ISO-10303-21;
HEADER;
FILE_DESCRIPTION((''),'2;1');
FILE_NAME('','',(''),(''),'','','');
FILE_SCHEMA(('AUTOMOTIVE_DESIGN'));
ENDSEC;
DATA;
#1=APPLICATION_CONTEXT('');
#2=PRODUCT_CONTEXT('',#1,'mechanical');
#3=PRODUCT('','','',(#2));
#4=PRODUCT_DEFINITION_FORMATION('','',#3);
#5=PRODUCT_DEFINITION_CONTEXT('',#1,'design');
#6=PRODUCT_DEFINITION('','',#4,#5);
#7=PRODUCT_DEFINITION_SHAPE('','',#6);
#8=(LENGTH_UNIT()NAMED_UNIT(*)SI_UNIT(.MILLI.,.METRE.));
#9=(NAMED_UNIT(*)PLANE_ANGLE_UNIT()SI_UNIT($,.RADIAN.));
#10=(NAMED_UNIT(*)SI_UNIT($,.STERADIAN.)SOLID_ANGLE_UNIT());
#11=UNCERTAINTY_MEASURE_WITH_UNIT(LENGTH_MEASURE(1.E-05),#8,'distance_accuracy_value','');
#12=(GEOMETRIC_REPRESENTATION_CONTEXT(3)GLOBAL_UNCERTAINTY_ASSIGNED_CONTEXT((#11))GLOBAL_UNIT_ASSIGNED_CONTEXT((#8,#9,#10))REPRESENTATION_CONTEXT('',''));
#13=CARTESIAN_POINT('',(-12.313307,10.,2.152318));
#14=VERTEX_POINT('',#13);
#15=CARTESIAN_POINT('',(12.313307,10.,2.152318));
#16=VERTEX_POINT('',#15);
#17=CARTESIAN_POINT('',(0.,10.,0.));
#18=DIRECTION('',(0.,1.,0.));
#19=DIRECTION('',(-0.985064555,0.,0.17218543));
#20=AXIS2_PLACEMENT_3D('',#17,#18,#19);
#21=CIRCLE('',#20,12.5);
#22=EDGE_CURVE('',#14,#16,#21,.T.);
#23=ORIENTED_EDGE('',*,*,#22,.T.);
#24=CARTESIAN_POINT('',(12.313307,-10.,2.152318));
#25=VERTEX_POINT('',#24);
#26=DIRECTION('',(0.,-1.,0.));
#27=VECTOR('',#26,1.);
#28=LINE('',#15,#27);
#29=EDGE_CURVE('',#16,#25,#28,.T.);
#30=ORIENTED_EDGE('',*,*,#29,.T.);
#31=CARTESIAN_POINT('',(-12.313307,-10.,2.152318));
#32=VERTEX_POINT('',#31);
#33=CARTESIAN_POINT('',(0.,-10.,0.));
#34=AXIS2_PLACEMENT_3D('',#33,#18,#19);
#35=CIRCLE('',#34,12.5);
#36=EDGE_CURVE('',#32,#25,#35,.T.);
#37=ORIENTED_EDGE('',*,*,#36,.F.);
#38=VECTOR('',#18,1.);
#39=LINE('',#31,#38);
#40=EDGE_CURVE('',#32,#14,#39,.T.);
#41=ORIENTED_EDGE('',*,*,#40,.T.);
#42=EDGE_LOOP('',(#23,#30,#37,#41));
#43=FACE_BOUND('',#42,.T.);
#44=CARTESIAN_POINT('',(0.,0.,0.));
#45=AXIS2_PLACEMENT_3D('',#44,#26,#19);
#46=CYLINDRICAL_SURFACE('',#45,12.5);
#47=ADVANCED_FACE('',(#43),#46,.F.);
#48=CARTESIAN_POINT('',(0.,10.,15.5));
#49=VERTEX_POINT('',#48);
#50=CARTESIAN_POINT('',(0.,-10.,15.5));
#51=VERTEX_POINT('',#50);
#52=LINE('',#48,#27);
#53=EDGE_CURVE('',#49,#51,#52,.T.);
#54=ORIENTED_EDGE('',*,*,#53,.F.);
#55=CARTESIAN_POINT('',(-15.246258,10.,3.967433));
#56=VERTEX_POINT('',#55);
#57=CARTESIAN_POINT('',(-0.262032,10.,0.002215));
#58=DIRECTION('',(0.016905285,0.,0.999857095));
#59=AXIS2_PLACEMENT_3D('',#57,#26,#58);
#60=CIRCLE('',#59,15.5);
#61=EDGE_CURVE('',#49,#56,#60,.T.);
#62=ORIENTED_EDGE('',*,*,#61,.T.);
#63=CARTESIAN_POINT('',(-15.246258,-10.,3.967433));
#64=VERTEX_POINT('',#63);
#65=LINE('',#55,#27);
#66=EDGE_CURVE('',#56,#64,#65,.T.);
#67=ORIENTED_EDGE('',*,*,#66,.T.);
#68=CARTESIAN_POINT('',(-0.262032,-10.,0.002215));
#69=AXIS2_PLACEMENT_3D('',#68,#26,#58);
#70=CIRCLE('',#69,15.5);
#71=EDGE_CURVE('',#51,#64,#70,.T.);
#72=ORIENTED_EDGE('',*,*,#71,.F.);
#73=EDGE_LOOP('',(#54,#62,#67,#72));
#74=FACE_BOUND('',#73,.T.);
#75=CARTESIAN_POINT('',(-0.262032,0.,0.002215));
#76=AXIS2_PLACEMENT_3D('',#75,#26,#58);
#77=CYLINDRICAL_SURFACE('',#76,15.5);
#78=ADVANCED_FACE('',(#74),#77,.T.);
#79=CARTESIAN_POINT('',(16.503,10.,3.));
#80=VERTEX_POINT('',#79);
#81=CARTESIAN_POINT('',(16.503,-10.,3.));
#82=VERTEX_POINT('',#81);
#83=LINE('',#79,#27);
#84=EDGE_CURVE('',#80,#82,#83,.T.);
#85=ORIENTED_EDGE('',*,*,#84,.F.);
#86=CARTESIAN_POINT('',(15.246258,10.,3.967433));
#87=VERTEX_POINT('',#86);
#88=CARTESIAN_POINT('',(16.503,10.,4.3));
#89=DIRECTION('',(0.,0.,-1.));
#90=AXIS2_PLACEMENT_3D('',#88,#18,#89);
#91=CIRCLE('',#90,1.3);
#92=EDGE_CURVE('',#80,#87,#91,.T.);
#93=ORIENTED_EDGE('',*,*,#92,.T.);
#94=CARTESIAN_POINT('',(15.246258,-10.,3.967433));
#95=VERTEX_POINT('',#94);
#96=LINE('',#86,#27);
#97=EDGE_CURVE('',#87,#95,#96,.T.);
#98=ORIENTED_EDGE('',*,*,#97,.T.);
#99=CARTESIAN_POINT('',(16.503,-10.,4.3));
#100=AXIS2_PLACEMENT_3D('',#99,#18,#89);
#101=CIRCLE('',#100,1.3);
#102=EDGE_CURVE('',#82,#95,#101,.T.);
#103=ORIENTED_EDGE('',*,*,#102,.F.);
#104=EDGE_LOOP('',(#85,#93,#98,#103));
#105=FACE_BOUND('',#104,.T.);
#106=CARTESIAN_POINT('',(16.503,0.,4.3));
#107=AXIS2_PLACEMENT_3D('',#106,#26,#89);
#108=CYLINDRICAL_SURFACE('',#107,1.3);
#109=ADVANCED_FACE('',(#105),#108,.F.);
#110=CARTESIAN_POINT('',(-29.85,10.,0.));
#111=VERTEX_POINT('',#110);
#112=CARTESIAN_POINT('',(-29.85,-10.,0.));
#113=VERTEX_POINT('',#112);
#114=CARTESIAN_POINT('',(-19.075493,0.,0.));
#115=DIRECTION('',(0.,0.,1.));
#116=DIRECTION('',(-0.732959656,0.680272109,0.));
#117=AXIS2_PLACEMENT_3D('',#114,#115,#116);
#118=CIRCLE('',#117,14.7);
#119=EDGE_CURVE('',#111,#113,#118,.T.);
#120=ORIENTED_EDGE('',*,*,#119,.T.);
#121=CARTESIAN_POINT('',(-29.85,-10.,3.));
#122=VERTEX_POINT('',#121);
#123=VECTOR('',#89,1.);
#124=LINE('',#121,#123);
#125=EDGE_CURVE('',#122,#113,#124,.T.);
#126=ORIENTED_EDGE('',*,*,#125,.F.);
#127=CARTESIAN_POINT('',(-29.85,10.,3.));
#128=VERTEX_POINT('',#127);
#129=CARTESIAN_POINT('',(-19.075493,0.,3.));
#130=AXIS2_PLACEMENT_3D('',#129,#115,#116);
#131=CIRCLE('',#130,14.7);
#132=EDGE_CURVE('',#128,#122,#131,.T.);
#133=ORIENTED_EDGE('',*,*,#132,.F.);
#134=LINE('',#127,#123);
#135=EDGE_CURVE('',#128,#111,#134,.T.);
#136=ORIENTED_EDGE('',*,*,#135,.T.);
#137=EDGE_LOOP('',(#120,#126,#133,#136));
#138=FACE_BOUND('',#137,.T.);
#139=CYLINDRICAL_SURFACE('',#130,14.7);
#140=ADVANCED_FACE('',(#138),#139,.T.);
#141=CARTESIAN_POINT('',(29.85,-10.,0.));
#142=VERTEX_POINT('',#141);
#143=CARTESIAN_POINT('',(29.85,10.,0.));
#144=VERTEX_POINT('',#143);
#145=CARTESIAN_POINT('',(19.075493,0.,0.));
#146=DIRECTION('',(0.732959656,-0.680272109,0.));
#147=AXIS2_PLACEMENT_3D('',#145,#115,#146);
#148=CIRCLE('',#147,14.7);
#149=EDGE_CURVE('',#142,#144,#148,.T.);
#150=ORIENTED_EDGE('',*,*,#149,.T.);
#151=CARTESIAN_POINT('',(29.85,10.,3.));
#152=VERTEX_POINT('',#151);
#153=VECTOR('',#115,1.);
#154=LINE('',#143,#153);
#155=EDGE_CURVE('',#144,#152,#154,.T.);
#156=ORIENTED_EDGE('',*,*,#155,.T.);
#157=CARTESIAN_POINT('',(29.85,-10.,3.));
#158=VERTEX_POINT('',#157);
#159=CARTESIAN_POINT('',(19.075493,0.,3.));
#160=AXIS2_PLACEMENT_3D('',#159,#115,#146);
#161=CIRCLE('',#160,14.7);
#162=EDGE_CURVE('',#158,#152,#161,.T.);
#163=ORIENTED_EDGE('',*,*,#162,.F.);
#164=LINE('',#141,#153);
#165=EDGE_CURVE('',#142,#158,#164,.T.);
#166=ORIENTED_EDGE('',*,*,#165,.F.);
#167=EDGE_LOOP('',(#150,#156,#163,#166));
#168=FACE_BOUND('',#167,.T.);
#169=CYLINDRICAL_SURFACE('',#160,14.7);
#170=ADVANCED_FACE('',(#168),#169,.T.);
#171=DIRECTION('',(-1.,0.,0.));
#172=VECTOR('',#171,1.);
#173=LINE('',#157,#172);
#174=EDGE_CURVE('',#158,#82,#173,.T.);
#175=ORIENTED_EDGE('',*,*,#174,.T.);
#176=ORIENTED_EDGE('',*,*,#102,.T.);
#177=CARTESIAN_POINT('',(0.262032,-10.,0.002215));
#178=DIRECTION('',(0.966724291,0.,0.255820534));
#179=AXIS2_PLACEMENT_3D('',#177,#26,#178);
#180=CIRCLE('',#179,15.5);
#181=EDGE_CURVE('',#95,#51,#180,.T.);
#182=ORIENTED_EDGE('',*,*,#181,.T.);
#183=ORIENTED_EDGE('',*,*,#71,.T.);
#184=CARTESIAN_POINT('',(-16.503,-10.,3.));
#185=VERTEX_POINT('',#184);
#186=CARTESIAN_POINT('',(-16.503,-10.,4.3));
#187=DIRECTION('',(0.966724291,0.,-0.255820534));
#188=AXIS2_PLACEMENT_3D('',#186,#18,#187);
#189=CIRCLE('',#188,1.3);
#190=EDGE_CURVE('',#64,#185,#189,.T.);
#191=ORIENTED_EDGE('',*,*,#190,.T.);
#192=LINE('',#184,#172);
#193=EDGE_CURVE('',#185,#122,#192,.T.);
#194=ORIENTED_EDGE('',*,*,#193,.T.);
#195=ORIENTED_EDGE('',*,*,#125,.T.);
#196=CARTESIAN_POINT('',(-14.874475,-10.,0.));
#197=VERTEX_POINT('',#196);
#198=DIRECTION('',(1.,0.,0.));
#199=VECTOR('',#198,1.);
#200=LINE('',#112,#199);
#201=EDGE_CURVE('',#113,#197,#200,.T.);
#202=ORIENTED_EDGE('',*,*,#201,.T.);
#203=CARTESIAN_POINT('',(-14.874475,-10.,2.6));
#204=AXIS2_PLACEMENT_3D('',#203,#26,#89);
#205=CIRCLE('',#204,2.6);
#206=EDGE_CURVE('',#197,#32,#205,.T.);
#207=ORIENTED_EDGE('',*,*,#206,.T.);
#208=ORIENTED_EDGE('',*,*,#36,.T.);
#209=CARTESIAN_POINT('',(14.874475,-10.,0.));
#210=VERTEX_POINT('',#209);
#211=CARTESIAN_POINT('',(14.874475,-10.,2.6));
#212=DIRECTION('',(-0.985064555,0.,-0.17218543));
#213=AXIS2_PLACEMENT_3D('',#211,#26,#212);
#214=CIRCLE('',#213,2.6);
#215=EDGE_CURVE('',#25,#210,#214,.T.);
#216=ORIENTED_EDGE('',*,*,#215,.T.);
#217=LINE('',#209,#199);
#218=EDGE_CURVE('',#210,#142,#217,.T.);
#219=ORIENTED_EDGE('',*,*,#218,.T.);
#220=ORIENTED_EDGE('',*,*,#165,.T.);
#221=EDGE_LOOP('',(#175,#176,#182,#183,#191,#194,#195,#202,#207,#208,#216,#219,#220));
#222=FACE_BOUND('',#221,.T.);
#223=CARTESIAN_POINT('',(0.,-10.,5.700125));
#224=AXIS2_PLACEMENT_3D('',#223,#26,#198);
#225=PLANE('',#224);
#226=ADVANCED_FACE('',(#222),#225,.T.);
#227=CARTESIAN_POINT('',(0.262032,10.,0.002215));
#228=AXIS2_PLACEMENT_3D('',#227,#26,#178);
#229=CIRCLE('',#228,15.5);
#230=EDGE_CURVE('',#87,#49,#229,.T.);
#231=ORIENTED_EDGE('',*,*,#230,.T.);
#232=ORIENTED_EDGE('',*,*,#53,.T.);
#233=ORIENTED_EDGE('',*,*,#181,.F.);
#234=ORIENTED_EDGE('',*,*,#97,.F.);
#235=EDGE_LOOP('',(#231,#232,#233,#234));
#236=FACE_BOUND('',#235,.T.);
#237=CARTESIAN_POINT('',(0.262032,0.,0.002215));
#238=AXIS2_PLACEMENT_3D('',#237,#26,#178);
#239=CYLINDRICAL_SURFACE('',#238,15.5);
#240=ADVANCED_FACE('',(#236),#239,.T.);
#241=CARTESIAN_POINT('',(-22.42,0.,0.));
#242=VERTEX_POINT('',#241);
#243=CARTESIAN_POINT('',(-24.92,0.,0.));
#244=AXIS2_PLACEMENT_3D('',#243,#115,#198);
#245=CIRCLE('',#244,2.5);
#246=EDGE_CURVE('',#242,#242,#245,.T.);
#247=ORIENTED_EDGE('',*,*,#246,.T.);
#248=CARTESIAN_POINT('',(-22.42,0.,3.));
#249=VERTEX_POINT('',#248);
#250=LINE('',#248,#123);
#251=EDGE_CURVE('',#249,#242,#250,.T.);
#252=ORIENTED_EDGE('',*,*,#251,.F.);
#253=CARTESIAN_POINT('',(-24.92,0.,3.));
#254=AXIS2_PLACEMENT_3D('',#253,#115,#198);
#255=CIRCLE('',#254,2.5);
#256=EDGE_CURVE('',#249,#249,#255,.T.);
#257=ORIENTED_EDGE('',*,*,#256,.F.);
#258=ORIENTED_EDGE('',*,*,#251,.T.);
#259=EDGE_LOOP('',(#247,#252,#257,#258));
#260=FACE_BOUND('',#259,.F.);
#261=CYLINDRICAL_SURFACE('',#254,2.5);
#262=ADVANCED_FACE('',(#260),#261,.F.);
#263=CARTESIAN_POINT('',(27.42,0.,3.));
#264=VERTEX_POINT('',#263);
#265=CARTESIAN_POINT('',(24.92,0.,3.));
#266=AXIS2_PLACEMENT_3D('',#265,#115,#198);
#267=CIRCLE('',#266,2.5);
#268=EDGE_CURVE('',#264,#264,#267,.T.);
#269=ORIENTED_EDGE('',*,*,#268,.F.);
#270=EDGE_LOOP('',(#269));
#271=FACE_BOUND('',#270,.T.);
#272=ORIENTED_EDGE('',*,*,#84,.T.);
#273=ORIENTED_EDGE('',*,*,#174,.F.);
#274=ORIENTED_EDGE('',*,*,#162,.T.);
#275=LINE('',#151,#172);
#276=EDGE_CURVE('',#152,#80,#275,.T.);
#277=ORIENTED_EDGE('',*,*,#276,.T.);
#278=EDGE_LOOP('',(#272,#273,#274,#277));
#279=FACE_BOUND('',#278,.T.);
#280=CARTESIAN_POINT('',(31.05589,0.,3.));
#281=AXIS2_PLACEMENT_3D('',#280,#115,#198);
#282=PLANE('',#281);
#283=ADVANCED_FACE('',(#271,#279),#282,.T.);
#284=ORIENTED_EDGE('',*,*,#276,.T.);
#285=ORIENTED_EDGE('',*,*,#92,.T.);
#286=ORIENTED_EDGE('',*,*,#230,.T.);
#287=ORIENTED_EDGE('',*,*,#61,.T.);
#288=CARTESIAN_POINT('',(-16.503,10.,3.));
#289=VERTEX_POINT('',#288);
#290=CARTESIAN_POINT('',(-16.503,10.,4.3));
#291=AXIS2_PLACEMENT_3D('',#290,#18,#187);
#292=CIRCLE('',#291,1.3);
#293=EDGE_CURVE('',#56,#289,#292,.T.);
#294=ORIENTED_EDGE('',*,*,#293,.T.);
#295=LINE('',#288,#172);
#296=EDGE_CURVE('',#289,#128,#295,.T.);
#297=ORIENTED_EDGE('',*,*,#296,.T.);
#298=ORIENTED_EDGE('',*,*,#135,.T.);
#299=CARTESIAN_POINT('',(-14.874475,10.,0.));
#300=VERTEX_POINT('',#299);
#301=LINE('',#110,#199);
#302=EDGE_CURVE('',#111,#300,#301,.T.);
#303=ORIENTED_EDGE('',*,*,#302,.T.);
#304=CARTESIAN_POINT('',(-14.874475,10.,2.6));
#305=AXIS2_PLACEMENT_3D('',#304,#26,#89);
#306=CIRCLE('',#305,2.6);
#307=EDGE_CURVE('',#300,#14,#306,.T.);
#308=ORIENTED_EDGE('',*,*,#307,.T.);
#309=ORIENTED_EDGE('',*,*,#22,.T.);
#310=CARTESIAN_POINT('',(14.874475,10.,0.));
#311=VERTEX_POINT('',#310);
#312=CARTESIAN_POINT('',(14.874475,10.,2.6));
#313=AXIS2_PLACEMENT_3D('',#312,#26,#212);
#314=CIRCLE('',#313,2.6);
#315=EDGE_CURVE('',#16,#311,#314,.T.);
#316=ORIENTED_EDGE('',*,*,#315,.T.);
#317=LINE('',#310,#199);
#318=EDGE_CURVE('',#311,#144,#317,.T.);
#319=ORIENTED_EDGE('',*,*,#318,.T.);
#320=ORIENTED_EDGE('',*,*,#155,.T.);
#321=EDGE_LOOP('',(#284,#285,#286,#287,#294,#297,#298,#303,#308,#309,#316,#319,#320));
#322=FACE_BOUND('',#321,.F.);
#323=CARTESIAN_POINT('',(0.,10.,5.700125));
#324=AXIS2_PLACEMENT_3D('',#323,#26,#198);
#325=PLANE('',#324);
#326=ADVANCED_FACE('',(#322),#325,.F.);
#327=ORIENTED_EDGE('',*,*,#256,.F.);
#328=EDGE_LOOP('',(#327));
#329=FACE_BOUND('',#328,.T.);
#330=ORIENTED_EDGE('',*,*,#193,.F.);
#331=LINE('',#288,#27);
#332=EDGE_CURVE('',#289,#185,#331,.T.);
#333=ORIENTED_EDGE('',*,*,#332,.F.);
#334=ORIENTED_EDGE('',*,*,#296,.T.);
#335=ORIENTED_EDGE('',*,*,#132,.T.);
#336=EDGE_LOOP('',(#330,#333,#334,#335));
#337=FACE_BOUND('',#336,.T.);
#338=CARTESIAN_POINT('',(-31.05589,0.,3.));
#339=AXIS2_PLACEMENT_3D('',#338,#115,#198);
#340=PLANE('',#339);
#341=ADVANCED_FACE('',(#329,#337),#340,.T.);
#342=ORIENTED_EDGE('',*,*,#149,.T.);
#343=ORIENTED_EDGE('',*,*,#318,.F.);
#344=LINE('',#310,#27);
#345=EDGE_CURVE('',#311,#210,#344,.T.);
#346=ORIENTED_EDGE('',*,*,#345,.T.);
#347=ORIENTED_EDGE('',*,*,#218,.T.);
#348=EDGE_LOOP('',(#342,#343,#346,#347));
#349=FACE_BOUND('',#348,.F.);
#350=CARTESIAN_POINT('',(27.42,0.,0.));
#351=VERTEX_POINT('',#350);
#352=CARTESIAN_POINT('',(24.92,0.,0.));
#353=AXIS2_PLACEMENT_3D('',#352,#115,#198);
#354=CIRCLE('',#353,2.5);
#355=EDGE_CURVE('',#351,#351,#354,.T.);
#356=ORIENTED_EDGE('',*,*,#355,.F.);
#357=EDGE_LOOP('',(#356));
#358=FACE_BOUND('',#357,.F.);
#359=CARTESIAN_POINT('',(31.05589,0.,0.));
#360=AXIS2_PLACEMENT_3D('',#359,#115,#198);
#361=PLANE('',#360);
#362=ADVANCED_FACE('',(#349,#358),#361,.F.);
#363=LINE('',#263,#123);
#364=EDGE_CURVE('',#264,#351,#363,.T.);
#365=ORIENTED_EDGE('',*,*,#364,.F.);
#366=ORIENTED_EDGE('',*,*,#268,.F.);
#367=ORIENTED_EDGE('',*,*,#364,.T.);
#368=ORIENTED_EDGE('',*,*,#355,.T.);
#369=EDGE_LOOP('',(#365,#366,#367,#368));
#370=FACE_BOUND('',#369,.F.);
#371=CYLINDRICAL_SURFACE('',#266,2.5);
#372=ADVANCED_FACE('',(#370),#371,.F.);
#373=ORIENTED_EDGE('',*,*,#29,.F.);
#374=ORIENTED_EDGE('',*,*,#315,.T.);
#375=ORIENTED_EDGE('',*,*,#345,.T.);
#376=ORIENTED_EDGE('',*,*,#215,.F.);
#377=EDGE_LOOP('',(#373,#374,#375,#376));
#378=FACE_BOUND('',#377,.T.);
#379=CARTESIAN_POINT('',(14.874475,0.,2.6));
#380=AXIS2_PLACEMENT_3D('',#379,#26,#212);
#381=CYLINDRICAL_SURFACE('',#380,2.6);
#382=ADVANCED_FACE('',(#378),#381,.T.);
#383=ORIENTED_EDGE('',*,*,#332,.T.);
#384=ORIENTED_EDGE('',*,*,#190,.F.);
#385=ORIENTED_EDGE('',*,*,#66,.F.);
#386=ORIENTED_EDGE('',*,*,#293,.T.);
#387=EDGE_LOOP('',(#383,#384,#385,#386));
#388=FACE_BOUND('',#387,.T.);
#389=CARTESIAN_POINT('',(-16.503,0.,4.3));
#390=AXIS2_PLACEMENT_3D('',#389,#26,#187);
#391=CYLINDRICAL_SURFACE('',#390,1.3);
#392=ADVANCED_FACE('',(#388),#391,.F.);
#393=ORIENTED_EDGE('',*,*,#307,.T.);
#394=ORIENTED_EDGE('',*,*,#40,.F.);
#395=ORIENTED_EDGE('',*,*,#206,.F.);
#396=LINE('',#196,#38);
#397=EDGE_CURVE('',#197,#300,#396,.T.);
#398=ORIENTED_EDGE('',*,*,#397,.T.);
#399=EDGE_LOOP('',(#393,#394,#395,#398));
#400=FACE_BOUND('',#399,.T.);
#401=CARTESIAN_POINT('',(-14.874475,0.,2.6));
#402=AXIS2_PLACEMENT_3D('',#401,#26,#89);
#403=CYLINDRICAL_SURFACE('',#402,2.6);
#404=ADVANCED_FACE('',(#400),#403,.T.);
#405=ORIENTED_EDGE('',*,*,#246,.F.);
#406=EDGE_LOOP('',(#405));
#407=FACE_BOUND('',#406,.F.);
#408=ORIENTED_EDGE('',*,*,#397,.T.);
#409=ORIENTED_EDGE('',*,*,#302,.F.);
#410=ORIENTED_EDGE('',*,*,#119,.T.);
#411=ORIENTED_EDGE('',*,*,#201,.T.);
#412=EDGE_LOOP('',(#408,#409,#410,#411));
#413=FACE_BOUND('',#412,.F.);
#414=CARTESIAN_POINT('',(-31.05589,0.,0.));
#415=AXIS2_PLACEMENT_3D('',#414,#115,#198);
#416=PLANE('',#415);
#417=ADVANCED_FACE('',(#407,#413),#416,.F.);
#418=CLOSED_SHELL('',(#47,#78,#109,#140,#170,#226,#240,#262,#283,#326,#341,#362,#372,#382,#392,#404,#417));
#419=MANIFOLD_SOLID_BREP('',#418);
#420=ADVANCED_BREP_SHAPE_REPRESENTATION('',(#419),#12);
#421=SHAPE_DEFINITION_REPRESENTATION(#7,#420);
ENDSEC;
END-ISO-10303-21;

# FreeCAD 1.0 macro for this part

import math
import FreeCAD as App
import Part
import Sketcher

V = App.Vector
Q = App.Units.Quantity

doc = App.newDocument("Part")
body = doc.addObject("PartDesign::Body", "Body")

sketch1 = body.newObject("Sketcher::SketchObject", "Sketch")
sketch1.AttachmentSupport = (doc.getObject("XZ_Plane"), [""])
sketch1.MapMode = "FlatFace"
sketch1.addGeometry([
    Part.ArcOfCircle(Part.Circle(V(0, 0, 0), V(0, 0, 1), 12.5), math.radians(10), math.radians(170)),
    Part.ArcOfCircle(Part.Circle(V(14.9, 2.6, 0), V(0, 0, 1), 2.6), math.radians(-170), math.radians(-90)),
    Part.LineSegment(V(14.9, 0, 0), V(29.9, 0, 0)),
    Part.LineSegment(V(29.9, 0, 0), V(29.9, 3, 0)),
    Part.LineSegment(V(29.9, 3, 0), V(16.5, 3, 0)),
    Part.ArcOfCircle(Part.Circle(V(16.5, 4.3, 0), V(0, 0, 1), 1.3), math.radians(-165), math.radians(-90)),
    Part.ArcOfCircle(Part.Circle(V(0.3, 0, 0), V(0, 0, 1), 15.5), math.radians(15), math.radians(91)),
    Part.ArcOfCircle(Part.Circle(V(-0.3, 0, 0), V(0, 0, 1), 15.5), math.radians(89), math.radians(165)),
    Part.ArcOfCircle(Part.Circle(V(-16.5, 4.3, 0), V(0, 0, 1), 1.3), math.radians(-90), math.radians(-15)),
    Part.LineSegment(V(-16.5, 3, 0), V(-29.9, 3, 0)),
    Part.LineSegment(V(-29.9, 3, 0), V(-29.9, 0, 0)),
    Part.LineSegment(V(-29.9, 0, 0), V(-14.9, 0, 0)),
    Part.ArcOfCircle(Part.Circle(V(-14.9, 2.6, 0), V(0, 0, 1), 2.6), math.radians(-90), math.radians(-10)),
], False)
sketch1.addConstraint([
    Sketcher.Constraint("Tangent", 0, 1, 1, 1),
    Sketcher.Constraint("Tangent", 1, 2, 2, 1),
    Sketcher.Constraint("Coincident", 2, 2, 3, 1),
    Sketcher.Constraint("Coincident", 3, 2, 4, 1),
    Sketcher.Constraint("Tangent", 4, 2, 5, 2),
    Sketcher.Constraint("Tangent", 5, 1, 6, 1),
    Sketcher.Constraint("Coincident", 6, 2, 7, 1),
    Sketcher.Constraint("Tangent", 7, 2, 8, 2),
    Sketcher.Constraint("Tangent", 8, 1, 9, 1),
    Sketcher.Constraint("Coincident", 9, 2, 10, 1),
    Sketcher.Constraint("Coincident", 10, 2, 11, 1),
    Sketcher.Constraint("Tangent", 11, 2, 12, 1),
    Sketcher.Constraint("Tangent", 12, 2, 0, 2),
    Sketcher.Constraint("Horizontal", 2),
    Sketcher.Constraint("Vertical", 3),
    Sketcher.Constraint("Horizontal", 4),
    Sketcher.Constraint("Horizontal", 9),
    Sketcher.Constraint("Vertical", 10),
    Sketcher.Constraint("Horizontal", 11),
    Sketcher.Constraint("Coincident", 0, 3, -1, 1),
    Sketcher.Constraint("Equal", 6, 7),
    Sketcher.Constraint("Equal", 5, 8),
    Sketcher.Constraint("Equal", 1, 12),
    Sketcher.Constraint("Symmetric", 2, 2, 10, 2, -1, 1),
    Sketcher.Constraint("Symmetric", 6, 3, 7, 3, -2),
    Sketcher.Constraint("PointOnObject", 1, 2, -1),
    Sketcher.Constraint("Horizontal", 5, 3, 8, 3),
    Sketcher.Constraint("Radius", 0, Q("12.5 mm")),
    Sketcher.Constraint("Radius", 1, Q("2.6 mm")),
    Sketcher.Constraint("Radius", 5, Q("1.3 mm")),
    Sketcher.Constraint("Radius", 6, Q("15.5 mm")),
    Sketcher.Constraint("DistanceY", 3, 1, 3, 2, Q("3 mm")),
    Sketcher.Constraint("DistanceY", -1, 1, 6, 2, Q("15.5 mm")),
    Sketcher.Constraint("DistanceX", 4, 2, 4, 1, Q("13.347 mm")),
    Sketcher.Constraint("DistanceX", -1, 1, 2, 2, Q("29.85 mm")),
])
pad1 = body.newObject("PartDesign::Pad", "Pad")
pad1.Profile = sketch1
pad1.Length = 20
pad1.Midplane = True

sketch2 = body.newObject("Sketcher::SketchObject", "Sketch001")
sketch2.AttachmentSupport = (doc.getObject("XY_Plane"), [""])
sketch2.MapMode = "FlatFace"
sketch2.AttachmentOffset = App.Placement(V(0, 0, 3), App.Rotation())
sketch2.addGeometry([
    Part.Circle(V(-24.9, 0, 0), V(0, 0, 1), 2.5),
    Part.Circle(V(24.9, 0, 0), V(0, 0, 1), 2.5),
], False)
sketch2.addConstraint([
    Sketcher.Constraint("Equal", 0, 1),
    Sketcher.Constraint("Symmetric", 0, 3, 1, 3, -1, 1),
    Sketcher.Constraint("PointOnObject", 0, 3, -1),
    Sketcher.Constraint("Diameter", 0, Q("5 mm")),
    Sketcher.Constraint("DistanceX", 0, 3, -1, 1, Q("24.92 mm")),
])
pocket1 = body.newObject("PartDesign::Pocket", "Pocket")
pocket1.Profile = sketch2
pocket1.Length = 25

sketch3 = body.newObject("Sketcher::SketchObject", "Sketch002")
sketch3.AttachmentSupport = (doc.getObject("XY_Plane"), [""])
sketch3.MapMode = "FlatFace"
sketch3.AttachmentOffset = App.Placement(V(0, 0, 3), App.Rotation())
sketch3.addGeometry([
    Part.LineSegment(V(-30, -10, 0), V(-30, 10, 0)),
    Part.ArcOfCircle(Part.Circle(V(-19, 0, 0), V(0, 0, 1), 15), math.radians(137), math.radians(223)),
], False)
sketch3.addConstraint([
    Sketcher.Constraint("Coincident", 0, 1, 1, 2),
    Sketcher.Constraint("Coincident", 1, 1, 0, 2),
    Sketcher.Constraint("Vertical", 0),
    Sketcher.Constraint("PointOnObject", 1, 3, -1),
    Sketcher.Constraint("Radius", 1, Q("14.7 mm")),
    Sketcher.Constraint("DistanceY", 0, 1, 0, 2, Q("20 mm")),
    Sketcher.Constraint("DistanceX", 0, 1, -1, 1, Q("29.85 mm")),
])
pad2 = body.newObject("PartDesign::Pad", "Pad001")
pad2.Profile = sketch3
pad2.Length = 3
pad2.Reversed = True

sketch4 = body.newObject("Sketcher::SketchObject", "Sketch003")
sketch4.AttachmentSupport = (doc.getObject("XY_Plane"), [""])
sketch4.MapMode = "FlatFace"
sketch4.AttachmentOffset = App.Placement(V(0, 0, 3), App.Rotation())
sketch4.addGeometry([
    Part.LineSegment(V(30, 10, 0), V(30, -10, 0)),
    Part.ArcOfCircle(Part.Circle(V(19, 0, 0), V(0, 0, 1), 15), math.radians(-43), math.radians(43)),
], False)
sketch4.addConstraint([
    Sketcher.Constraint("Coincident", 0, 1, 1, 2),
    Sketcher.Constraint("Coincident", 1, 1, 0, 2),
    Sketcher.Constraint("Vertical", 0),
    Sketcher.Constraint("PointOnObject", 1, 3, -1),
    Sketcher.Constraint("Radius", 1, Q("14.7 mm")),
    Sketcher.Constraint("DistanceY", 0, 2, 0, 1, Q("20 mm")),
    Sketcher.Constraint("DistanceX", -1, 1, 0, 1, Q("29.85 mm")),
])
pad3 = body.newObject("PartDesign::Pad", "Pad002")
pad3.Profile = sketch4
pad3.Length = 3
pad3.Reversed = True

doc.recompute()
